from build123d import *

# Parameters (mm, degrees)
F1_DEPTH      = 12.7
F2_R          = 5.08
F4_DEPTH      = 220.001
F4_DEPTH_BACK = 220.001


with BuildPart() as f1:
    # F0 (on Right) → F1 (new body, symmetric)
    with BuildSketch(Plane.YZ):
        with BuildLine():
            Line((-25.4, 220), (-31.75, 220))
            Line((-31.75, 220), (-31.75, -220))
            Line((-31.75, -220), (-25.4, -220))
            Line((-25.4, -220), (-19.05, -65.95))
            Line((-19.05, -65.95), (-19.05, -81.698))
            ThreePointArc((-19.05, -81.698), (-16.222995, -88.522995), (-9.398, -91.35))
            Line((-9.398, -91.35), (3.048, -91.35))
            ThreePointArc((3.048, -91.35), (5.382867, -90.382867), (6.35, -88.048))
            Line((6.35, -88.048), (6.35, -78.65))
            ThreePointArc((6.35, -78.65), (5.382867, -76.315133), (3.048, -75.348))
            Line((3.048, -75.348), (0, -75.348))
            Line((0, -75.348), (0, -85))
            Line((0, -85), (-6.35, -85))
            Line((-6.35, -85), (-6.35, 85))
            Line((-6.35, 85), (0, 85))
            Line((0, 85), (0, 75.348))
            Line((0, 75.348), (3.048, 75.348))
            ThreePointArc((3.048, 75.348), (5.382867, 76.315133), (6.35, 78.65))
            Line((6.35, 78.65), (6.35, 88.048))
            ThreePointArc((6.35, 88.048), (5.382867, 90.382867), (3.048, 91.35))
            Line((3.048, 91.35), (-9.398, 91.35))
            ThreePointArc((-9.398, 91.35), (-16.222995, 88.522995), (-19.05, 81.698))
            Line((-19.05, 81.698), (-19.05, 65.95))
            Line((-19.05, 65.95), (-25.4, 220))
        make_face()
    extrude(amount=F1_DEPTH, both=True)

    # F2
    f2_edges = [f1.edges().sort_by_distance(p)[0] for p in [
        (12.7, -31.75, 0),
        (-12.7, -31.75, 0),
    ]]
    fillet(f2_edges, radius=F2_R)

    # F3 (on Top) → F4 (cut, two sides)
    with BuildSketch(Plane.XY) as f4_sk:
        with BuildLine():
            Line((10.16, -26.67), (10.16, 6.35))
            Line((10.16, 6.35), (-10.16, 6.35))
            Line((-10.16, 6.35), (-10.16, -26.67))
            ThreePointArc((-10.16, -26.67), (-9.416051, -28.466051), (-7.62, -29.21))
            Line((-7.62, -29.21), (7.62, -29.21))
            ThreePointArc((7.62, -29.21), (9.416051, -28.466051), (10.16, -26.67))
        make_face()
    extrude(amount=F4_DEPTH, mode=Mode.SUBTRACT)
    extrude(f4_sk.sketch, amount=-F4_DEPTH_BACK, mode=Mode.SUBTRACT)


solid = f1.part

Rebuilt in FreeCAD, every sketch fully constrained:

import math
import FreeCAD as App
import Part
import Sketcher
Q = App.Units.Quantity


def edges_at(feature, points):
    """Names of the edges that pass closest to the given points."""
    edges = feature.Shape.Edges
    near = lambda p: min(range(len(edges)), key=lambda i: edges[i].distToShape(Part.Vertex(*p))[0])
    return sorted({f"Edge{near(p) + 1}" for p in points})

doc = App.newDocument("Part")
body = doc.addObject("PartDesign::Body", "Body")

# Sketch on YZ plane
sketch1 = body.newObject("Sketcher::SketchObject", "Sketch")
sketch1.AttachmentSupport = (doc.getObject("YZ_Plane"), [""])
sketch1.MapMode = "FlatFace"
sketch1.addGeometry([
    Part.LineSegment(App.Vector(-25.4, 220, 0), App.Vector(-31.8, 220, 0)),  # 0
    Part.LineSegment(App.Vector(-31.8, 220, 0), App.Vector(-31.8, -220, 0)),  # 1
    Part.LineSegment(App.Vector(-31.8, -220, 0), App.Vector(-25.4, -220, 0)),  # 2
    Part.LineSegment(App.Vector(-25.4, -220, 0), App.Vector(-19.1, -66, 0)),  # 3
    Part.LineSegment(App.Vector(-19.1, -66, 0), App.Vector(-19.1, -81.7, 0)),  # 4
    Part.ArcOfCircle(Part.Circle(App.Vector(-9.4, -81.7, 0), App.Vector(0, 0, 1), 9.7), math.radians(180), math.radians(270)),  # 5
    Part.LineSegment(App.Vector(-9.4, -91.3, 0), App.Vector(3, -91.3, 0)),  # 6
    Part.ArcOfCircle(Part.Circle(App.Vector(3, -88, 0), App.Vector(0, 0, 1), 3.3), math.radians(-90), math.radians(0)),  # 7
    Part.LineSegment(App.Vector(6.3, -88, 0), App.Vector(6.3, -78.7, 0)),  # 8
    Part.ArcOfCircle(Part.Circle(App.Vector(3, -78.6, 0), App.Vector(0, 0, 1), 3.3), math.radians(0), math.radians(90)),  # 9
    Part.LineSegment(App.Vector(3, -75.3, 0), App.Vector(0, -75.3, 0)),  # 10
    Part.LineSegment(App.Vector(0, -75.3, 0), App.Vector(0, -85, 0)),  # 11
    Part.LineSegment(App.Vector(0, -85, 0), App.Vector(-6.3, -85, 0)),  # 12
    Part.LineSegment(App.Vector(-6.3, -85, 0), App.Vector(-6.3, 85, 0)),  # 13
    Part.LineSegment(App.Vector(-6.3, 85, 0), App.Vector(0, 85, 0)),  # 14
    Part.LineSegment(App.Vector(0, 85, 0), App.Vector(0, 75.3, 0)),  # 15
    Part.LineSegment(App.Vector(0, 75.3, 0), App.Vector(3, 75.3, 0)),  # 16
    Part.ArcOfCircle(Part.Circle(App.Vector(3, 78.6, 0), App.Vector(0, 0, 1), 3.3), math.radians(-90), math.radians(0)),  # 17
    Part.LineSegment(App.Vector(6.3, 78.7, 0), App.Vector(6.3, 88, 0)),  # 18
    Part.ArcOfCircle(Part.Circle(App.Vector(3, 88, 0), App.Vector(0, 0, 1), 3.3), math.radians(0), math.radians(90)),  # 19
    Part.LineSegment(App.Vector(3, 91.3, 0), App.Vector(-9.4, 91.3, 0)),  # 20
    Part.ArcOfCircle(Part.Circle(App.Vector(-9.4, 81.7, 0), App.Vector(0, 0, 1), 9.7), math.radians(90), math.radians(180)),  # 21
    Part.LineSegment(App.Vector(-19.1, 81.7, 0), App.Vector(-19.1, 66, 0)),  # 22
    Part.LineSegment(App.Vector(-19.1, 66, 0), App.Vector(-25.4, 220, 0)),  # 23
], False)
sketch1.addConstraint([
    Sketcher.Constraint("Coincident", 0, 2, 1, 1),
    Sketcher.Constraint("Coincident", 1, 2, 2, 1),
    Sketcher.Constraint("Coincident", 2, 2, 3, 1),
    Sketcher.Constraint("Coincident", 3, 2, 4, 1),
    Sketcher.Constraint("Tangent", 4, 2, 5, 1),
    Sketcher.Constraint("Tangent", 5, 2, 6, 1),
    Sketcher.Constraint("Tangent", 6, 2, 7, 1),
    Sketcher.Constraint("Tangent", 7, 2, 8, 1),
    Sketcher.Constraint("Tangent", 8, 2, 9, 1),
    Sketcher.Constraint("Tangent", 9, 2, 10, 1),
    Sketcher.Constraint("Coincident", 10, 2, 11, 1),
    Sketcher.Constraint("Coincident", 11, 2, 12, 1),
    Sketcher.Constraint("Coincident", 12, 2, 13, 1),
    Sketcher.Constraint("Coincident", 13, 2, 14, 1),
    Sketcher.Constraint("Coincident", 14, 2, 15, 1),
    Sketcher.Constraint("Coincident", 15, 2, 16, 1),
    Sketcher.Constraint("Tangent", 16, 2, 17, 1),
    Sketcher.Constraint("Tangent", 17, 2, 18, 1),
    Sketcher.Constraint("Tangent", 18, 2, 19, 1),
    Sketcher.Constraint("Tangent", 19, 2, 20, 1),
    Sketcher.Constraint("Tangent", 20, 2, 21, 1),
    Sketcher.Constraint("Tangent", 21, 2, 22, 1),
    Sketcher.Constraint("Coincident", 22, 2, 23, 1),
    Sketcher.Constraint("Coincident", 23, 2, 0, 1),
    Sketcher.Constraint("Horizontal", 0),
    Sketcher.Constraint("Vertical", 1),
    Sketcher.Constraint("Horizontal", 2),
    Sketcher.Constraint("Vertical", 4),
    Sketcher.Constraint("Horizontal", 6),
    Sketcher.Constraint("Vertical", 8),
    Sketcher.Constraint("Horizontal", 10),
    Sketcher.Constraint("Vertical", 11),
    Sketcher.Constraint("Horizontal", 12),
    Sketcher.Constraint("Vertical", 13),
    Sketcher.Constraint("Horizontal", 14),
    Sketcher.Constraint("Vertical", 15),
    Sketcher.Constraint("Horizontal", 16),
    Sketcher.Constraint("Vertical", 18),
    Sketcher.Constraint("Horizontal", 20),
    Sketcher.Constraint("Vertical", 22),
    Sketcher.Constraint("Equal", 7, 9),
    Sketcher.Constraint("Equal", 9, 17),
    Sketcher.Constraint("Equal", 17, 19),
    Sketcher.Constraint("Equal", 5, 21),
    Sketcher.Constraint("Symmetric", 11, 2, 14, 2, -1, 1),
    Sketcher.Constraint("Symmetric", 9, 3, 17, 3, -1),
    Sketcher.Constraint("Symmetric", 5, 3, 21, 3, -1),
    Sketcher.Constraint("Symmetric", 2, 2, 23, 2, -1),
    Sketcher.Constraint("PointOnObject", 10, 2, -2),
    Sketcher.Constraint("Equal", 2, 12),
    Sketcher.Constraint("Equal", 4, 22),
    Sketcher.Constraint("Radius", 5, Q("0.38 in")),
    Sketcher.Constraint("Radius", 7, Q("0.1299999 in")),
    Sketcher.Constraint("DistanceX", 2, 2, -1, 1, Q("1 in")),
    Sketcher.Constraint("DistanceY", 5, 2, 3, 2, Q("1 in")),
    Sketcher.Constraint("DistanceX", 0, 2, 0, 1, Q("0.25 in")),
    Sketcher.Constraint("DistanceX", 6, 1, 6, 2, Q("0.49 in")),
    Sketcher.Constraint("DistanceX", 10, 2, 10, 1, Q("0.12 in")),
    Sketcher.Constraint("DistanceY", 8, 1, 8, 2, Q("0.37 in")),
    Sketcher.Constraint("DistanceY", 11, 2, 11, 1, Q("0.38 in")),
    Sketcher.Constraint("DistanceY", 1, 2, 1, 1, Q("440 mm")),
    Sketcher.Constraint("DistanceY", 13, 1, 13, 2, Q("170 mm")),
])
pad1 = body.newObject("PartDesign::Pad", "Pad")
pad1.Profile = sketch1
pad1.Length = Q("1 in")
pad1.Midplane = True
doc.recompute()

fillet = body.newObject("PartDesign::Fillet", "Fillet")
fillet.Base = (pad1, edges_at(pad1, [(12.7, -31.75, 0), (-12.7, -31.75, 0)]))
fillet.Radius = Q("0.2 in")

# Sketch on XY plane
sketch2 = body.newObject("Sketcher::SketchObject", "Sketch001")
sketch2.AttachmentSupport = (doc.getObject("XY_Plane"), [""])
sketch2.MapMode = "FlatFace"
sketch2.addGeometry([
    Part.LineSegment(App.Vector(10.2, -26.7, 0), App.Vector(10.2, 6.3, 0)),  # 0
    Part.LineSegment(App.Vector(10.2, 6.3, 0), App.Vector(-10.2, 6.3, 0)),  # 1
    Part.LineSegment(App.Vector(-10.2, 6.3, 0), App.Vector(-10.2, -26.7, 0)),  # 2
    Part.ArcOfCircle(Part.Circle(App.Vector(-7.6, -26.7, 0), App.Vector(0, 0, 1), 2.5), math.radians(-180), math.radians(-90)),  # 3
    Part.LineSegment(App.Vector(-7.6, -29.2, 0), App.Vector(7.6, -29.2, 0)),  # 4
    Part.ArcOfCircle(Part.Circle(App.Vector(7.6, -26.7, 0), App.Vector(0, 0, 1), 2.5), math.radians(-90), math.radians(0)),  # 5
], False)
sketch2.addConstraint([
    Sketcher.Constraint("Coincident", 0, 2, 1, 1),
    Sketcher.Constraint("Coincident", 1, 2, 2, 1),
    Sketcher.Constraint("Tangent", 2, 2, 3, 1),
    Sketcher.Constraint("Tangent", 3, 2, 4, 1),
    Sketcher.Constraint("Tangent", 4, 2, 5, 1),
    Sketcher.Constraint("Tangent", 5, 2, 0, 1),
    Sketcher.Constraint("Vertical", 0),
    Sketcher.Constraint("Horizontal", 1),
    Sketcher.Constraint("Vertical", 2),
    Sketcher.Constraint("Horizontal", 4),
    Sketcher.Constraint("Equal", 3, 5),
    Sketcher.Constraint("Radius", 3, Q("0.1 in")),
    Sketcher.Constraint("DistanceX", 1, 2, 1, 1, Q("0.8 in")),
    Sketcher.Constraint("DistanceY", 0, 1, 0, 2, Q("1.3 in")),
    Sketcher.Constraint("DistanceX", 3, 3, -1, 1, Q("0.3 in")),
    Sketcher.Constraint("DistanceY", 3, 3, -1, 1, Q("1.05 in")),
])
pocket1 = body.newObject("PartDesign::Pocket", "Pocket")
pocket1.Profile = sketch2
pocket1.Type = "ThroughAll"
pocket1.Midplane = True

doc.recompute()
